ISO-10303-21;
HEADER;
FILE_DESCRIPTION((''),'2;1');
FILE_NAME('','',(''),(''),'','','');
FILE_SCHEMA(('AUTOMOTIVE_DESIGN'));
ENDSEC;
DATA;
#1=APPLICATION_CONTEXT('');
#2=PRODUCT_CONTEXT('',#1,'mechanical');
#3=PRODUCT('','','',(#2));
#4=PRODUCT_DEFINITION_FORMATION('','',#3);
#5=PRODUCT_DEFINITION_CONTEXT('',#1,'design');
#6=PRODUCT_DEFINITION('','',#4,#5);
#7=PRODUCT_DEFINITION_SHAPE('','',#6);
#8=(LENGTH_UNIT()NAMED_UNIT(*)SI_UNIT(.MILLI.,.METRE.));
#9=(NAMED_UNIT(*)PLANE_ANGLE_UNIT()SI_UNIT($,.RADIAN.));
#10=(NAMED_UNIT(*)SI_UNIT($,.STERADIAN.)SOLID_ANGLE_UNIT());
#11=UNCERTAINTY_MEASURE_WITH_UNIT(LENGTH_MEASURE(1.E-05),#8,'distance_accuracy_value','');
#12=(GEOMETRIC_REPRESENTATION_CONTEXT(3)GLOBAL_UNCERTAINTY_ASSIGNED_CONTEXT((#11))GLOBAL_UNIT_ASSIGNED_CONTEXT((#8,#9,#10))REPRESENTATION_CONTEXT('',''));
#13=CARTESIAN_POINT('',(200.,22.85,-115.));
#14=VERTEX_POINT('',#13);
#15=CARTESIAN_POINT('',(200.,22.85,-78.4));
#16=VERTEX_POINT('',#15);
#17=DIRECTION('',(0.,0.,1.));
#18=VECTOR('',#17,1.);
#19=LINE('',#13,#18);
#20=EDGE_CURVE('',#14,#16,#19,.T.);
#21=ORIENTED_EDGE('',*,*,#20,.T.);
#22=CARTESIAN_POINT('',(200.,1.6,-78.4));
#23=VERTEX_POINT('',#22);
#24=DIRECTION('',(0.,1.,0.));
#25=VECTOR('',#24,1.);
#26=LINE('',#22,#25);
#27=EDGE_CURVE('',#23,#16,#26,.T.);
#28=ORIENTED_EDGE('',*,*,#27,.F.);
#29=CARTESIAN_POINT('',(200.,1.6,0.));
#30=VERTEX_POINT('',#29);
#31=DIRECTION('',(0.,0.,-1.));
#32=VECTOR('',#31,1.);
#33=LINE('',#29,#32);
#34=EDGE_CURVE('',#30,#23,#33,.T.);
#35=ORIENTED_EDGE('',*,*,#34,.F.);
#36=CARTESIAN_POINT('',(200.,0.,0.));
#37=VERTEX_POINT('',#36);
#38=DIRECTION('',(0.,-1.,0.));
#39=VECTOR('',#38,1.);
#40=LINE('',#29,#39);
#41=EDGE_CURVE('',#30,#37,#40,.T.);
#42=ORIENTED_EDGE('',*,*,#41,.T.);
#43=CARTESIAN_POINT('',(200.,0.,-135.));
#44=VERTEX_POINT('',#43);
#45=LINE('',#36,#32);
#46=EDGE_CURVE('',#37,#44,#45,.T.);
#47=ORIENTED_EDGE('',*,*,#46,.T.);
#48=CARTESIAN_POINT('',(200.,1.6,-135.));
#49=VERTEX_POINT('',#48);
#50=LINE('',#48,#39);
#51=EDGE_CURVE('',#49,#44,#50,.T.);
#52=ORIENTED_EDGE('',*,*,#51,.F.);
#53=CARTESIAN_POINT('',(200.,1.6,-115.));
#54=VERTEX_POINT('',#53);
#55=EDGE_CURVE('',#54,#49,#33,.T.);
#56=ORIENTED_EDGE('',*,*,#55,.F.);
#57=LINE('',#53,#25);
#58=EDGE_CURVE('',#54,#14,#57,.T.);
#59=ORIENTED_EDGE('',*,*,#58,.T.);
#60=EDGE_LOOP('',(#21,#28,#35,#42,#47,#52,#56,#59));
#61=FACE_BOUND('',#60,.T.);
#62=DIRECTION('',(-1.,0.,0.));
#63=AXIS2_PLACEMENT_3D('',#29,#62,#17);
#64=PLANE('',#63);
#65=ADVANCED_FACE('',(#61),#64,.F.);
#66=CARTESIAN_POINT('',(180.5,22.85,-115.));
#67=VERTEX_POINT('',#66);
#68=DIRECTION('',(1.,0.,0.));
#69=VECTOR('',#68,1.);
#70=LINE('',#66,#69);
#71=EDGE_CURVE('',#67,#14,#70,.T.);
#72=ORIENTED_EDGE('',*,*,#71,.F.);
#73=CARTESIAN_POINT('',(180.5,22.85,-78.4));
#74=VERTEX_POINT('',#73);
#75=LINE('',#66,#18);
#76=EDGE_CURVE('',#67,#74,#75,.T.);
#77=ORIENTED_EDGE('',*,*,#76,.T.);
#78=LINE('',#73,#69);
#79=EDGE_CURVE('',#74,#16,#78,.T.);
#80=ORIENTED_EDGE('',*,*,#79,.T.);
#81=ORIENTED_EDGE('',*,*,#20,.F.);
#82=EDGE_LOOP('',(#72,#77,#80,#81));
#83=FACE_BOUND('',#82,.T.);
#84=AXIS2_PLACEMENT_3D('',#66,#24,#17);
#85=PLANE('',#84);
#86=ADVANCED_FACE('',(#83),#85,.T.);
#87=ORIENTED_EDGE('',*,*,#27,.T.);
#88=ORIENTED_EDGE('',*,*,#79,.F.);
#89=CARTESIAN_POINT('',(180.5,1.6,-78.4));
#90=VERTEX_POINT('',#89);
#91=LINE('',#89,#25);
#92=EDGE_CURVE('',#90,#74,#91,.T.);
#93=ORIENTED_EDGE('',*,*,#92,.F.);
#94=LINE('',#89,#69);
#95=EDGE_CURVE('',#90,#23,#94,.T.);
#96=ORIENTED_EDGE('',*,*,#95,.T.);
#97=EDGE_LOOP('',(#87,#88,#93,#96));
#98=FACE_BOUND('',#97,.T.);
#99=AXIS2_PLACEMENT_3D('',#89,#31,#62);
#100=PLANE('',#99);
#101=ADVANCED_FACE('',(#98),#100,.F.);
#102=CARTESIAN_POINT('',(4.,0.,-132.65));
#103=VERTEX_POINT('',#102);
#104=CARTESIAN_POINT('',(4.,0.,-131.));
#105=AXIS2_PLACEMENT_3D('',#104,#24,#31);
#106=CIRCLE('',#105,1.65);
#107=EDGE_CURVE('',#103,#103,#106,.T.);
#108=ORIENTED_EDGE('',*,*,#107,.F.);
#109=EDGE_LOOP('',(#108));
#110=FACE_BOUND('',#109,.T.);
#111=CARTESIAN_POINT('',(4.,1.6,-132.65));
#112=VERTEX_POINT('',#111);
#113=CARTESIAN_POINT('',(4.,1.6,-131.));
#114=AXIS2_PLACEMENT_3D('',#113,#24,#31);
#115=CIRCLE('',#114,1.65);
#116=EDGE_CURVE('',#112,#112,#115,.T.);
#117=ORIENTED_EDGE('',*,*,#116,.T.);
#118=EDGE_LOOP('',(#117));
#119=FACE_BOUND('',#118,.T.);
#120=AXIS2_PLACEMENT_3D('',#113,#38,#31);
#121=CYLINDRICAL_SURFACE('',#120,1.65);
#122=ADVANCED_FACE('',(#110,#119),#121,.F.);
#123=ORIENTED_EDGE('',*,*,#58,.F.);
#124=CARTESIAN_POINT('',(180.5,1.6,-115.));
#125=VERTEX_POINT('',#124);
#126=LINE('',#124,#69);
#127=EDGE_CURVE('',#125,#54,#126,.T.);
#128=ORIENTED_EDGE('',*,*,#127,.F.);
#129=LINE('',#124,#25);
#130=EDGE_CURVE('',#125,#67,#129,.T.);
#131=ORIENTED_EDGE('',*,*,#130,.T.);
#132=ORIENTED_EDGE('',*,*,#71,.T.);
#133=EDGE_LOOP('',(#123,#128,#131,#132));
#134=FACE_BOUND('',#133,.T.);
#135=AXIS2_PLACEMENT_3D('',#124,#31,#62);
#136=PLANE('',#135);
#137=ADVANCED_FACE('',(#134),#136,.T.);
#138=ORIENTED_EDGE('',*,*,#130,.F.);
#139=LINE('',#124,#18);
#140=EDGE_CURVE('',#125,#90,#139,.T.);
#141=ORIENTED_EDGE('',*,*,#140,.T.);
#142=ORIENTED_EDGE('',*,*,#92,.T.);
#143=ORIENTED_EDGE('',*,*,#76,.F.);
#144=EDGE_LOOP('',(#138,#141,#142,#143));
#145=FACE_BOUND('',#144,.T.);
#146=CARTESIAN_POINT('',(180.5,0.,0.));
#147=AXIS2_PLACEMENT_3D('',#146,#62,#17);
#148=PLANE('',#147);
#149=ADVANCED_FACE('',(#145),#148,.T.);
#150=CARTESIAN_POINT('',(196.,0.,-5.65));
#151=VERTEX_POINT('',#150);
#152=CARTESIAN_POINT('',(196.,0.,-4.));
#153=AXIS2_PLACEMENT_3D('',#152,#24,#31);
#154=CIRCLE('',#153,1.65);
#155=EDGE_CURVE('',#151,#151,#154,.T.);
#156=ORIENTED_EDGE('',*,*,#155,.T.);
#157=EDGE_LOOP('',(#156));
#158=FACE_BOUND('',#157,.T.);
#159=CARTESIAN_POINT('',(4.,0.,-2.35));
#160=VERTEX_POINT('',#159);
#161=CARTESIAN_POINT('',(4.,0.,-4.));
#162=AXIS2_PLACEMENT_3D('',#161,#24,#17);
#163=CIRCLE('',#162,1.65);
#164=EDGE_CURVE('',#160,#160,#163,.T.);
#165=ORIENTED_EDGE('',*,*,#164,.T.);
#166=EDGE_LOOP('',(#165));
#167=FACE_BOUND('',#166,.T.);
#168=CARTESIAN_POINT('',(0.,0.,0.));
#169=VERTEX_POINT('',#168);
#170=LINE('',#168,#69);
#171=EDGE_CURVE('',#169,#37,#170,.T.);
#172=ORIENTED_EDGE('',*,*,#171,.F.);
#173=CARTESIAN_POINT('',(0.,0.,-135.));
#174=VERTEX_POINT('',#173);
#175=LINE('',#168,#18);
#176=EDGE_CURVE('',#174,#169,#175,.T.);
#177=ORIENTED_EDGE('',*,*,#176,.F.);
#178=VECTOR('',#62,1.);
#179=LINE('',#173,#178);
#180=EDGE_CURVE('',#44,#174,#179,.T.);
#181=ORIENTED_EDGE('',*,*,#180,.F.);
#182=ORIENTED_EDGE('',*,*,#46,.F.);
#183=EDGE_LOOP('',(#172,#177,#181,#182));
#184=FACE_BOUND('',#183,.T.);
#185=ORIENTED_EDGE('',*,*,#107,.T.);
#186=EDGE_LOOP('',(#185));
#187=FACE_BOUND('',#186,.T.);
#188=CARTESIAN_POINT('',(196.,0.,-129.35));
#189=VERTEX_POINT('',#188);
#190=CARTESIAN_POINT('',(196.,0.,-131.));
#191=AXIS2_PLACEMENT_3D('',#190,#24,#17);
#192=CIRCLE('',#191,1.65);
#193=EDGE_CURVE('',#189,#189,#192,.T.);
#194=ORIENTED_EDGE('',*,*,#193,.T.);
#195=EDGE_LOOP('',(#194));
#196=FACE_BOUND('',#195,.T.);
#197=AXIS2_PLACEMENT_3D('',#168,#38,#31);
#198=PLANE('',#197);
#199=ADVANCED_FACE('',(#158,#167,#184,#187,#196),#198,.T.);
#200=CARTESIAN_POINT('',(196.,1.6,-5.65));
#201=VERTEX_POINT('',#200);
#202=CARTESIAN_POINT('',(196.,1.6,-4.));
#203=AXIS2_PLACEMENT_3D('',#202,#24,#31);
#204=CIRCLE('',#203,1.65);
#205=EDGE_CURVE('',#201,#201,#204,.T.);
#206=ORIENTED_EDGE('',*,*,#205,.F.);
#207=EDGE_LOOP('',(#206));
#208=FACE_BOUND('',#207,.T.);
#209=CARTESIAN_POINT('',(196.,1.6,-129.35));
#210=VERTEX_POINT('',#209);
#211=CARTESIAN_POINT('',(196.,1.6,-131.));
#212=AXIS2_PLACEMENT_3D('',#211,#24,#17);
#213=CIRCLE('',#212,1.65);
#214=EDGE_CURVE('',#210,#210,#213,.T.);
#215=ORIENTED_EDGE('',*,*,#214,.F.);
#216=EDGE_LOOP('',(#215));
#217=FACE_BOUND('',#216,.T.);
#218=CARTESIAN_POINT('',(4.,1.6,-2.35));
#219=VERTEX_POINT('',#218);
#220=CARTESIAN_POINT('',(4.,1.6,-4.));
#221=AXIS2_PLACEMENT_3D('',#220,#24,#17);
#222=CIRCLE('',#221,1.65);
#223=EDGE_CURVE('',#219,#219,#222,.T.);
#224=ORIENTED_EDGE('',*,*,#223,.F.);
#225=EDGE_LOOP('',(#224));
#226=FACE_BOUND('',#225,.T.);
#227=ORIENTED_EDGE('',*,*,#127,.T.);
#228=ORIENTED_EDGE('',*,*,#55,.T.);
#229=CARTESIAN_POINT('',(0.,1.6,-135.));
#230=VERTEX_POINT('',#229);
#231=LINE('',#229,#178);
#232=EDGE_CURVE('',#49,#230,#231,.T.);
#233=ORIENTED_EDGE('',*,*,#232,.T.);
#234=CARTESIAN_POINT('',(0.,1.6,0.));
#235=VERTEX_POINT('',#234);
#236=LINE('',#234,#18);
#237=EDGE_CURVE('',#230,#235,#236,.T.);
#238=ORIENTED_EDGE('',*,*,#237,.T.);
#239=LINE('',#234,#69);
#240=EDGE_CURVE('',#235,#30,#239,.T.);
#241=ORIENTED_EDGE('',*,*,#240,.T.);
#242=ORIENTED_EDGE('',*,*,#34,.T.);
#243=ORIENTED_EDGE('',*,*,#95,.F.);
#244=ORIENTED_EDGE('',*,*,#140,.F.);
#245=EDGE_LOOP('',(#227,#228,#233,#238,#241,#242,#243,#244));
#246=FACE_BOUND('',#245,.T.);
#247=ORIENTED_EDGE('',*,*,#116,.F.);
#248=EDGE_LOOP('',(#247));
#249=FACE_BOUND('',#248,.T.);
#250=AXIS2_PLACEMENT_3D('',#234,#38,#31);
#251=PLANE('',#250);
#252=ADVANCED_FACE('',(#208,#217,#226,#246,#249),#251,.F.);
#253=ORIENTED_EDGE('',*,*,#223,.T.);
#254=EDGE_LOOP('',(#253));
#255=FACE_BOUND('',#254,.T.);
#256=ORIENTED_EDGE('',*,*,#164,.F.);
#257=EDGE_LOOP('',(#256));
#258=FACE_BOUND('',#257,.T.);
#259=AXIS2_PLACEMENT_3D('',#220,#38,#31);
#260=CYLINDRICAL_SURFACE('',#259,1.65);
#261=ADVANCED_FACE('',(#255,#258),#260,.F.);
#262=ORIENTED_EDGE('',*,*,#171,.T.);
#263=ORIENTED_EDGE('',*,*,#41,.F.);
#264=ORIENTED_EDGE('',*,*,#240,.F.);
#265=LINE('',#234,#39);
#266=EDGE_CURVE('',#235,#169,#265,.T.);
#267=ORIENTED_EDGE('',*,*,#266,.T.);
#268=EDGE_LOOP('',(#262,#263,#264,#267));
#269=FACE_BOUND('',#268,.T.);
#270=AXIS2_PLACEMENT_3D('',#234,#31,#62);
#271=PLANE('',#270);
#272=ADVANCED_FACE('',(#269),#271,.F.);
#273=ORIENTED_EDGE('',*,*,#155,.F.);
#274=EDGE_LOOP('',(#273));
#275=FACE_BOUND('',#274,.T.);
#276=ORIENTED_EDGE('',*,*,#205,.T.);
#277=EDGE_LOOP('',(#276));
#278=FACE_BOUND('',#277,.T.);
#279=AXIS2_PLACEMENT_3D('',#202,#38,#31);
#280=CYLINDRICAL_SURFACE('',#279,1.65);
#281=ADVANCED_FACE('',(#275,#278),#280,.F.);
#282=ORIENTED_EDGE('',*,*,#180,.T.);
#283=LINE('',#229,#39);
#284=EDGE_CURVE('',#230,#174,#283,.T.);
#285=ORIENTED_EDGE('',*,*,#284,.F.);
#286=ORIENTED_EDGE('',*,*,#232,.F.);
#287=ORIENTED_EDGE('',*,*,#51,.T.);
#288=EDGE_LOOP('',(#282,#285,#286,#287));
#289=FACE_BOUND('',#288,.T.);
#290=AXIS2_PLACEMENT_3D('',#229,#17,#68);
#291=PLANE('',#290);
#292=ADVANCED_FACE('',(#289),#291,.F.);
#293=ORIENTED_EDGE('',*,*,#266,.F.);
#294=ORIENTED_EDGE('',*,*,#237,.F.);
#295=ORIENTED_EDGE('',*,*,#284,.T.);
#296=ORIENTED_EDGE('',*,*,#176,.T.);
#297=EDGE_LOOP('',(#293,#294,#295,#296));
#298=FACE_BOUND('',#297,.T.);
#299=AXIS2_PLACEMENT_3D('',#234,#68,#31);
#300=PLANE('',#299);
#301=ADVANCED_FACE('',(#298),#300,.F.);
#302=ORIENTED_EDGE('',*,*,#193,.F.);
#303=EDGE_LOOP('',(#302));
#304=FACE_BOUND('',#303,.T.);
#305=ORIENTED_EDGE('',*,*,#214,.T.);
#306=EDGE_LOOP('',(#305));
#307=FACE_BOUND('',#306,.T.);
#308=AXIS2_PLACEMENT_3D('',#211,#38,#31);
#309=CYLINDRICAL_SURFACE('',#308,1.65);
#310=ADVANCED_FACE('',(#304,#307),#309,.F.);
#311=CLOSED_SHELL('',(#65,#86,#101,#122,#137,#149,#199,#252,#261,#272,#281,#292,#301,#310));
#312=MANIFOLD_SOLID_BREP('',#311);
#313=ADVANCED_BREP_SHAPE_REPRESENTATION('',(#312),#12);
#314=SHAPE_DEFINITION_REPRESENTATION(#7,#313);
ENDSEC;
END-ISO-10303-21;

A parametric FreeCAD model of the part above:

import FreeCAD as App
import Part
import Sketcher

V = App.Vector
Q = App.Units.Quantity

doc = App.newDocument("Part")
body = doc.addObject("PartDesign::Body", "Body")

sketch1 = body.newObject("Sketcher::SketchObject", "Sketch")
sketch1.AttachmentSupport = (doc.getObject("XZ_Plane"), [""])
sketch1.MapMode = "FlatFace"
sketch1.addGeometry(Part.LineSegment(V(0, -135, 0), V(0, 0, 0)), False)
sketch1.addGeometry(Part.LineSegment(V(0, 0, 0), V(200, 0, 0)), False)
sketch1.addGeometry(Part.LineSegment(V(200, 0, 0), V(200, -135, 0)), False)
sketch1.addGeometry(Part.LineSegment(V(200, -135, 0), V(0, -135, 0)), False)
sketch1.addGeometry(Part.Circle(V(4, -4, 0), V(0, 0, 1), 1.6), False)
sketch1.addGeometry(Part.Circle(V(196, -4, 0), V(0, 0, 1), 1.6), False)
sketch1.addGeometry(Part.Circle(V(4, -131, 0), V(0, 0, 1), 1.6), False)
sketch1.addGeometry(Part.Circle(V(196, -131, 0), V(0, 0, 1), 1.6), False)
sketch1.addConstraint(Sketcher.Constraint("Coincident", 0, 2, 1, 1))
sketch1.addConstraint(Sketcher.Constraint("Coincident", 1, 2, 2, 1))
sketch1.addConstraint(Sketcher.Constraint("Coincident", 2, 2, 3, 1))
sketch1.addConstraint(Sketcher.Constraint("Coincident", 3, 2, 0, 1))
sketch1.addConstraint(Sketcher.Constraint("Vertical", 0))
sketch1.addConstraint(Sketcher.Constraint("Horizontal", 1))
sketch1.addConstraint(Sketcher.Constraint("Vertical", 2))
sketch1.addConstraint(Sketcher.Constraint("Horizontal", 3))
sketch1.addConstraint(Sketcher.Constraint("Coincident", 0, 2, -1, 1))
sketch1.addConstraint(Sketcher.Constraint("Equal", 4, 5))
sketch1.addConstraint(Sketcher.Constraint("Equal", 5, 6))
sketch1.addConstraint(Sketcher.Constraint("Equal", 6, 7))
sketch1.addConstraint(Sketcher.Constraint("Horizontal", 4, 3, 5, 3))
sketch1.addConstraint(Sketcher.Constraint("Horizontal", 6, 3, 7, 3))
sketch1.addConstraint(Sketcher.Constraint("Vertical", 4, 3, 6, 3))
sketch1.addConstraint(Sketcher.Constraint("Vertical", 5, 3, 7, 3))
sketch1.addConstraint(Sketcher.Constraint("Diameter", 4, Q("3.3 mm")))
sketch1.addConstraint(Sketcher.Constraint("DistanceX", 1, 1, 1, 2, Q("200 mm")))
sketch1.addConstraint(Sketcher.Constraint("DistanceY", 0, 1, 0, 2, Q("135 mm")))
sketch1.addConstraint(Sketcher.Constraint("DistanceX", -1, 1, 4, 3, Q("4 mm")))
sketch1.addConstraint(Sketcher.Constraint("DistanceY", 4, 3, -1, 1, Q("4 mm")))
sketch1.addConstraint(Sketcher.Constraint("DistanceX", -1, 1, 5, 3, Q("196 mm")))
sketch1.addConstraint(Sketcher.Constraint("DistanceY", 6, 3, -1, 1, Q("131 mm")))
pad1 = body.newObject("PartDesign::Pad", "Pad")
pad1.Profile = sketch1
pad1.Length = 1.6
pad1.Reversed = True

sketch2 = body.newObject("Sketcher::SketchObject", "Sketch001")
sketch2.AttachmentSupport = (doc.getObject("YZ_Plane"), [""])
sketch2.MapMode = "FlatFace"
sketch2.AttachmentOffset = App.Placement(V(0, 0, 200), App.Rotation())
sketch2.addGeometry(Part.LineSegment(V(23, -78, 0), V(2, -78, 0)), False)
sketch2.addGeometry(Part.LineSegment(V(2, -78, 0), V(2, -115, 0)), False)
sketch2.addGeometry(Part.LineSegment(V(2, -115, 0), V(23, -115, 0)), False)
sketch2.addGeometry(Part.LineSegment(V(23, -115, 0), V(23, -78, 0)), False)
sketch2.addConstraint(Sketcher.Constraint("Coincident", 0, 2, 1, 1))
sketch2.addConstraint(Sketcher.Constraint("Coincident", 1, 2, 2, 1))
sketch2.addConstraint(Sketcher.Constraint("Coincident", 2, 2, 3, 1))
sketch2.addConstraint(Sketcher.Constraint("Coincident", 3, 2, 0, 1))
sketch2.addConstraint(Sketcher.Constraint("Horizontal", 0))
sketch2.addConstraint(Sketcher.Constraint("Vertical", 1))
sketch2.addConstraint(Sketcher.Constraint("Horizontal", 2))
sketch2.addConstraint(Sketcher.Constraint("Vertical", 3))
sketch2.addConstraint(Sketcher.Constraint("DistanceY", 1, 2, 1, 1, Q("36.6 mm")))
sketch2.addConstraint(Sketcher.Constraint("DistanceY", 1, 2, -1, 1, Q("115 mm")))
sketch2.addConstraint(Sketcher.Constraint("DistanceX", 0, 2, 0, 1, Q("21.25 mm")))
sketch2.addConstraint(Sketcher.Constraint("DistanceX", -1, 1, 0, 2, Q("1.6 mm")))
pad2 = body.newObject("PartDesign::Pad", "Pad001")
pad2.Profile = sketch2
pad2.Length = 19.5
pad2.Reversed = True

doc.recompute()
